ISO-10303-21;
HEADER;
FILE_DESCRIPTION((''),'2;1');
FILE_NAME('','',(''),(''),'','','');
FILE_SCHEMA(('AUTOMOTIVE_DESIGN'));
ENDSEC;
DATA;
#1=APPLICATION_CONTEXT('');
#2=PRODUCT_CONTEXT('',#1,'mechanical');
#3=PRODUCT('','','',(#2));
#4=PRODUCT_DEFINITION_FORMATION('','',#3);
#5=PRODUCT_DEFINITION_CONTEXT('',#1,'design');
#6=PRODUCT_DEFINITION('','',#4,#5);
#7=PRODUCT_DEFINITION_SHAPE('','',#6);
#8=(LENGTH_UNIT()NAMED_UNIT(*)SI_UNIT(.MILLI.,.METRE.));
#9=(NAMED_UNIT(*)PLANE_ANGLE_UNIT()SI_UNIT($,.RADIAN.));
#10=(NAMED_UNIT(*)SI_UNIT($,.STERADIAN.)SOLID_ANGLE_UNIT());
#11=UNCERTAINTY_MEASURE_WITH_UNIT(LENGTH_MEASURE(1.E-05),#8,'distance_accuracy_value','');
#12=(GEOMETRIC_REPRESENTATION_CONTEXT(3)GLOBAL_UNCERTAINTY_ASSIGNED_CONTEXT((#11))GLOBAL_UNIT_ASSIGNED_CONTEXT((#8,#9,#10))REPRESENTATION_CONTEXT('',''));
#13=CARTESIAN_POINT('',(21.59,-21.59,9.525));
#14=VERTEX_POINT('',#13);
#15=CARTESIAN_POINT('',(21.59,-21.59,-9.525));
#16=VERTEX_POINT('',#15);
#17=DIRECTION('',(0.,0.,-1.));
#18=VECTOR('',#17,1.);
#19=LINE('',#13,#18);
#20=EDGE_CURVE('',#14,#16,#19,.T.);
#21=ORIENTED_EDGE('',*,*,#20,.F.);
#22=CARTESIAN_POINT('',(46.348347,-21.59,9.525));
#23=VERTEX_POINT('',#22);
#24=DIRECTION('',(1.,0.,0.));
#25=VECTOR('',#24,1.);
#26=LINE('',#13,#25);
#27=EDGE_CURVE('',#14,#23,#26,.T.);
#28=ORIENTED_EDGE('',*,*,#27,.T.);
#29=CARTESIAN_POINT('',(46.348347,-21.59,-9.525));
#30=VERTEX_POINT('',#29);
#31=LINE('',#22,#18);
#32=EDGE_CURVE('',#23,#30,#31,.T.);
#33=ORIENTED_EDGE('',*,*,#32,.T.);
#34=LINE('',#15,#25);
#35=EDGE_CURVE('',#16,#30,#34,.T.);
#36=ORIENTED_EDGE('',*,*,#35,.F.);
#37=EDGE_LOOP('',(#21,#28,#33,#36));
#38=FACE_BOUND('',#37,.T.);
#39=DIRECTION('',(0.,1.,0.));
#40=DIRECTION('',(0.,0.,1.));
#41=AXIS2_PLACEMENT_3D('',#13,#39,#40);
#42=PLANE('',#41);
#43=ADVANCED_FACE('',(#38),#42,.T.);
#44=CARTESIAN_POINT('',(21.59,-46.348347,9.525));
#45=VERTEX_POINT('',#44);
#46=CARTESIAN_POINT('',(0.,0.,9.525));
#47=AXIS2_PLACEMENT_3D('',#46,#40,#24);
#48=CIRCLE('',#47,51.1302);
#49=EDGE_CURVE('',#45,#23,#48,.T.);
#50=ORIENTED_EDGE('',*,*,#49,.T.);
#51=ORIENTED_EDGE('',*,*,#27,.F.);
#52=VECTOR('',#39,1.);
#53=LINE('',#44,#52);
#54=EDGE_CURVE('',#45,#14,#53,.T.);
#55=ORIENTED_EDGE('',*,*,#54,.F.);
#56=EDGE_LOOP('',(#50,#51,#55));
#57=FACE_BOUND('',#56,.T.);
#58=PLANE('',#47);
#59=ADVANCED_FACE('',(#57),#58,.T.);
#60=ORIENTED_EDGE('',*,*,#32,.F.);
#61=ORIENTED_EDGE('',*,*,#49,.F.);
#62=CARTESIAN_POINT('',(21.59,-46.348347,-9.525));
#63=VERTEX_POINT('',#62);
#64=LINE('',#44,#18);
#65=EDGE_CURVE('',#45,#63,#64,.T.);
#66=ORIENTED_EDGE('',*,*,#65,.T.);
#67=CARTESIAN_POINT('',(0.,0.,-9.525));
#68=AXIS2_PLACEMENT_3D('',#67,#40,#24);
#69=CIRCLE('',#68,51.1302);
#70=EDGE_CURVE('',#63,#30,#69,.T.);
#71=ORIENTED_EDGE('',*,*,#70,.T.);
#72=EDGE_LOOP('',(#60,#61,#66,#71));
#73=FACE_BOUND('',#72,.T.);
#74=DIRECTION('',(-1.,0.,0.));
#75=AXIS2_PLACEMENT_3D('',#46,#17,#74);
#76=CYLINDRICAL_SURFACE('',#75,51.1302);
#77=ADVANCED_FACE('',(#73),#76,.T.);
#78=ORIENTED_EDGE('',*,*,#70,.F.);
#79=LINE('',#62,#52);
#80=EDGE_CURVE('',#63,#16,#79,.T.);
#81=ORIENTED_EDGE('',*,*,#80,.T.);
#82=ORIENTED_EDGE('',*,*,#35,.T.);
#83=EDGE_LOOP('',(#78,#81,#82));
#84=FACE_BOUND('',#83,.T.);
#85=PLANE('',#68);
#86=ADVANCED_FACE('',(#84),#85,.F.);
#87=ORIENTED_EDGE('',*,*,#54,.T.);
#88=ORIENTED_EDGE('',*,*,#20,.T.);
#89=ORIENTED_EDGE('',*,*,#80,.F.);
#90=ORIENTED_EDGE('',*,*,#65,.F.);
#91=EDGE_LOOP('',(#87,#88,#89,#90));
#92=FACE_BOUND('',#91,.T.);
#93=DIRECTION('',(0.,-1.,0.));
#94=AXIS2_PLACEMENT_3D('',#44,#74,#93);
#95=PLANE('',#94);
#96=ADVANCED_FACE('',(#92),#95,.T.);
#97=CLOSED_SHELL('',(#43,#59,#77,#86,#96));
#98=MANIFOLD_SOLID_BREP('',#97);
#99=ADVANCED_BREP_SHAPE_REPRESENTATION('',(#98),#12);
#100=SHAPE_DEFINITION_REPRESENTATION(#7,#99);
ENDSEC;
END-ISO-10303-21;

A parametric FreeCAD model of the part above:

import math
import FreeCAD as App
import Part
import Sketcher
Q = App.Units.Quantity

doc = App.newDocument("Part")
body = doc.addObject("PartDesign::Body", "Body")

# Sketch on XY plane
sketch1 = body.newObject("Sketcher::SketchObject", "Sketch")
sketch1.AttachmentSupport = (doc.getObject("XY_Plane"), [""])
sketch1.MapMode = "FlatFace"
sketch1.addGeometry([
    Part.LineSegment(App.Vector(46, -22, 0), App.Vector(22, -22, 0)),
    Part.LineSegment(App.Vector(22, -22, 0), App.Vector(22, -46, 0)),
    Part.ArcOfCircle(Part.Circle(App.Vector(0, 0, 0), App.Vector(0, 0, 1), 51), math.radians(-65), math.radians(-25)),
], False)
sketch1.addConstraint([
    Sketcher.Constraint("Coincident", 0, 2, 1, 1),
    Sketcher.Constraint("Coincident", 1, 2, 2, 1),
    Sketcher.Constraint("Coincident", 2, 2, 0, 1),
    Sketcher.Constraint("Horizontal", 0),
    Sketcher.Constraint("Vertical", 1),
    Sketcher.Constraint("Coincident", 2, 3, -1, 1),
    Sketcher.Constraint("Equal", 0, 1),
    Sketcher.Constraint("Radius", 2, Q("2.013 in")),
    Sketcher.Constraint("DistanceX", -1, 1, 0, 2, Q("0.85 in")),
])
pad1 = body.newObject("PartDesign::Pad", "Pad")
pad1.Profile = sketch1
pad1.Length = Q("0.75 in")
pad1.Midplane = True

doc.recompute()
